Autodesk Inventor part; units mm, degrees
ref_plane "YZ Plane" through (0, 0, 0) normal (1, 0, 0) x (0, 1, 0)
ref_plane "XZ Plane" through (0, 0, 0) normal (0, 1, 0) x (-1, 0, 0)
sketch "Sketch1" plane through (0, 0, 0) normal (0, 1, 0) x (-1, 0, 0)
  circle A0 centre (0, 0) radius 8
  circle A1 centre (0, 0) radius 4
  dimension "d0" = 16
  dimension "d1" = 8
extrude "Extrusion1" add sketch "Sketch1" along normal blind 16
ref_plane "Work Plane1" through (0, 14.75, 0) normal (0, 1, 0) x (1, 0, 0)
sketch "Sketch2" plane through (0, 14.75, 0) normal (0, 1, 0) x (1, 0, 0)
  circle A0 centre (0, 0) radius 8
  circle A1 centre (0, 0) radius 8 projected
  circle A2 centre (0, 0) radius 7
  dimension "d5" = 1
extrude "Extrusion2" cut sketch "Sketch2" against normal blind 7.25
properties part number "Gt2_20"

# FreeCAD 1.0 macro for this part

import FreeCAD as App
import Part
import Sketcher

V = App.Vector
Q = App.Units.Quantity

doc = App.newDocument("Part")
params = doc.addObject("Spreadsheet::Sheet", "Params")
for row, (alias, value) in enumerate([
    ("sketch1_diameter", "16 mm"),
    ("sketch1_diameter2", "8 mm"),
    ("pad1_length", "16 mm"),
    ("sketch2_diameter", "16 mm"),
    ("sketch2_diameter2", "14 mm"),
    ("pocket1_length", "7.25 mm"),
], start=1):
    params.set(f"A{row}", alias)
    params.set(f"B{row}", "=" + value)
    params.setAlias(f"B{row}", alias)

body = doc.addObject("PartDesign::Body", "Body")

# Sketch on XZ plane
sketch1 = body.newObject("Sketcher::SketchObject", "Sketch")
sketch1.AttachmentSupport = (doc.getObject("XZ_Plane"), [""])
sketch1.MapMode = "FlatFace"
sketch1.addGeometry(Part.Circle(V(0, 0, 0), V(0, 0, 1), 8), False)
sketch1.addGeometry(Part.Circle(V(0, 0, 0), V(0, 0, 1), 4), False)
sketch1.addConstraint(Sketcher.Constraint("Coincident", 0, 3, -1, 1))
sketch1.addConstraint(Sketcher.Constraint("Coincident", 1, 3, -1, 1))
sketch1.addConstraint(Sketcher.Constraint("Diameter", 0, Q("16 mm")))
sketch1.addConstraint(Sketcher.Constraint("Diameter", 1, Q("8 mm")))
sketch1.setExpression("Constraints[2]", "Params.sketch1_diameter")
sketch1.setExpression("Constraints[3]", "Params.sketch1_diameter2")
pad1 = body.newObject("PartDesign::Pad", "Pad")
pad1.Profile = sketch1
pad1.setExpression("Length", "Params.pad1_length")
pad1.Reversed = True

# Sketch on XZ plane
sketch2 = body.newObject("Sketcher::SketchObject", "Sketch001")
sketch2.AttachmentSupport = (doc.getObject("XZ_Plane"), [""])
sketch2.MapMode = "FlatFace"
sketch2.AttachmentOffset = App.Placement(V(0, 0, -14.75), App.Rotation())
sketch2.addGeometry(Part.Circle(V(0, 0, 0), V(0, 0, 1), 8), False)
sketch2.addGeometry(Part.Circle(V(0, 0, 0), V(0, 0, 1), 7), False)
sketch2.addConstraint(Sketcher.Constraint("Coincident", 0, 3, -1, 1))
sketch2.addConstraint(Sketcher.Constraint("Coincident", 1, 3, -1, 1))
sketch2.addConstraint(Sketcher.Constraint("Diameter", 0, Q("16 mm")))
sketch2.addConstraint(Sketcher.Constraint("Diameter", 1, Q("14 mm")))
sketch2.setExpression("Constraints[2]", "Params.sketch2_diameter")
sketch2.setExpression("Constraints[3]", "Params.sketch2_diameter2")
pocket1 = body.newObject("PartDesign::Pocket", "Pocket")
pocket1.Profile = sketch2
pocket1.setExpression("Length", "Params.pocket1_length")
pocket1.Reversed = True

doc.recompute()
